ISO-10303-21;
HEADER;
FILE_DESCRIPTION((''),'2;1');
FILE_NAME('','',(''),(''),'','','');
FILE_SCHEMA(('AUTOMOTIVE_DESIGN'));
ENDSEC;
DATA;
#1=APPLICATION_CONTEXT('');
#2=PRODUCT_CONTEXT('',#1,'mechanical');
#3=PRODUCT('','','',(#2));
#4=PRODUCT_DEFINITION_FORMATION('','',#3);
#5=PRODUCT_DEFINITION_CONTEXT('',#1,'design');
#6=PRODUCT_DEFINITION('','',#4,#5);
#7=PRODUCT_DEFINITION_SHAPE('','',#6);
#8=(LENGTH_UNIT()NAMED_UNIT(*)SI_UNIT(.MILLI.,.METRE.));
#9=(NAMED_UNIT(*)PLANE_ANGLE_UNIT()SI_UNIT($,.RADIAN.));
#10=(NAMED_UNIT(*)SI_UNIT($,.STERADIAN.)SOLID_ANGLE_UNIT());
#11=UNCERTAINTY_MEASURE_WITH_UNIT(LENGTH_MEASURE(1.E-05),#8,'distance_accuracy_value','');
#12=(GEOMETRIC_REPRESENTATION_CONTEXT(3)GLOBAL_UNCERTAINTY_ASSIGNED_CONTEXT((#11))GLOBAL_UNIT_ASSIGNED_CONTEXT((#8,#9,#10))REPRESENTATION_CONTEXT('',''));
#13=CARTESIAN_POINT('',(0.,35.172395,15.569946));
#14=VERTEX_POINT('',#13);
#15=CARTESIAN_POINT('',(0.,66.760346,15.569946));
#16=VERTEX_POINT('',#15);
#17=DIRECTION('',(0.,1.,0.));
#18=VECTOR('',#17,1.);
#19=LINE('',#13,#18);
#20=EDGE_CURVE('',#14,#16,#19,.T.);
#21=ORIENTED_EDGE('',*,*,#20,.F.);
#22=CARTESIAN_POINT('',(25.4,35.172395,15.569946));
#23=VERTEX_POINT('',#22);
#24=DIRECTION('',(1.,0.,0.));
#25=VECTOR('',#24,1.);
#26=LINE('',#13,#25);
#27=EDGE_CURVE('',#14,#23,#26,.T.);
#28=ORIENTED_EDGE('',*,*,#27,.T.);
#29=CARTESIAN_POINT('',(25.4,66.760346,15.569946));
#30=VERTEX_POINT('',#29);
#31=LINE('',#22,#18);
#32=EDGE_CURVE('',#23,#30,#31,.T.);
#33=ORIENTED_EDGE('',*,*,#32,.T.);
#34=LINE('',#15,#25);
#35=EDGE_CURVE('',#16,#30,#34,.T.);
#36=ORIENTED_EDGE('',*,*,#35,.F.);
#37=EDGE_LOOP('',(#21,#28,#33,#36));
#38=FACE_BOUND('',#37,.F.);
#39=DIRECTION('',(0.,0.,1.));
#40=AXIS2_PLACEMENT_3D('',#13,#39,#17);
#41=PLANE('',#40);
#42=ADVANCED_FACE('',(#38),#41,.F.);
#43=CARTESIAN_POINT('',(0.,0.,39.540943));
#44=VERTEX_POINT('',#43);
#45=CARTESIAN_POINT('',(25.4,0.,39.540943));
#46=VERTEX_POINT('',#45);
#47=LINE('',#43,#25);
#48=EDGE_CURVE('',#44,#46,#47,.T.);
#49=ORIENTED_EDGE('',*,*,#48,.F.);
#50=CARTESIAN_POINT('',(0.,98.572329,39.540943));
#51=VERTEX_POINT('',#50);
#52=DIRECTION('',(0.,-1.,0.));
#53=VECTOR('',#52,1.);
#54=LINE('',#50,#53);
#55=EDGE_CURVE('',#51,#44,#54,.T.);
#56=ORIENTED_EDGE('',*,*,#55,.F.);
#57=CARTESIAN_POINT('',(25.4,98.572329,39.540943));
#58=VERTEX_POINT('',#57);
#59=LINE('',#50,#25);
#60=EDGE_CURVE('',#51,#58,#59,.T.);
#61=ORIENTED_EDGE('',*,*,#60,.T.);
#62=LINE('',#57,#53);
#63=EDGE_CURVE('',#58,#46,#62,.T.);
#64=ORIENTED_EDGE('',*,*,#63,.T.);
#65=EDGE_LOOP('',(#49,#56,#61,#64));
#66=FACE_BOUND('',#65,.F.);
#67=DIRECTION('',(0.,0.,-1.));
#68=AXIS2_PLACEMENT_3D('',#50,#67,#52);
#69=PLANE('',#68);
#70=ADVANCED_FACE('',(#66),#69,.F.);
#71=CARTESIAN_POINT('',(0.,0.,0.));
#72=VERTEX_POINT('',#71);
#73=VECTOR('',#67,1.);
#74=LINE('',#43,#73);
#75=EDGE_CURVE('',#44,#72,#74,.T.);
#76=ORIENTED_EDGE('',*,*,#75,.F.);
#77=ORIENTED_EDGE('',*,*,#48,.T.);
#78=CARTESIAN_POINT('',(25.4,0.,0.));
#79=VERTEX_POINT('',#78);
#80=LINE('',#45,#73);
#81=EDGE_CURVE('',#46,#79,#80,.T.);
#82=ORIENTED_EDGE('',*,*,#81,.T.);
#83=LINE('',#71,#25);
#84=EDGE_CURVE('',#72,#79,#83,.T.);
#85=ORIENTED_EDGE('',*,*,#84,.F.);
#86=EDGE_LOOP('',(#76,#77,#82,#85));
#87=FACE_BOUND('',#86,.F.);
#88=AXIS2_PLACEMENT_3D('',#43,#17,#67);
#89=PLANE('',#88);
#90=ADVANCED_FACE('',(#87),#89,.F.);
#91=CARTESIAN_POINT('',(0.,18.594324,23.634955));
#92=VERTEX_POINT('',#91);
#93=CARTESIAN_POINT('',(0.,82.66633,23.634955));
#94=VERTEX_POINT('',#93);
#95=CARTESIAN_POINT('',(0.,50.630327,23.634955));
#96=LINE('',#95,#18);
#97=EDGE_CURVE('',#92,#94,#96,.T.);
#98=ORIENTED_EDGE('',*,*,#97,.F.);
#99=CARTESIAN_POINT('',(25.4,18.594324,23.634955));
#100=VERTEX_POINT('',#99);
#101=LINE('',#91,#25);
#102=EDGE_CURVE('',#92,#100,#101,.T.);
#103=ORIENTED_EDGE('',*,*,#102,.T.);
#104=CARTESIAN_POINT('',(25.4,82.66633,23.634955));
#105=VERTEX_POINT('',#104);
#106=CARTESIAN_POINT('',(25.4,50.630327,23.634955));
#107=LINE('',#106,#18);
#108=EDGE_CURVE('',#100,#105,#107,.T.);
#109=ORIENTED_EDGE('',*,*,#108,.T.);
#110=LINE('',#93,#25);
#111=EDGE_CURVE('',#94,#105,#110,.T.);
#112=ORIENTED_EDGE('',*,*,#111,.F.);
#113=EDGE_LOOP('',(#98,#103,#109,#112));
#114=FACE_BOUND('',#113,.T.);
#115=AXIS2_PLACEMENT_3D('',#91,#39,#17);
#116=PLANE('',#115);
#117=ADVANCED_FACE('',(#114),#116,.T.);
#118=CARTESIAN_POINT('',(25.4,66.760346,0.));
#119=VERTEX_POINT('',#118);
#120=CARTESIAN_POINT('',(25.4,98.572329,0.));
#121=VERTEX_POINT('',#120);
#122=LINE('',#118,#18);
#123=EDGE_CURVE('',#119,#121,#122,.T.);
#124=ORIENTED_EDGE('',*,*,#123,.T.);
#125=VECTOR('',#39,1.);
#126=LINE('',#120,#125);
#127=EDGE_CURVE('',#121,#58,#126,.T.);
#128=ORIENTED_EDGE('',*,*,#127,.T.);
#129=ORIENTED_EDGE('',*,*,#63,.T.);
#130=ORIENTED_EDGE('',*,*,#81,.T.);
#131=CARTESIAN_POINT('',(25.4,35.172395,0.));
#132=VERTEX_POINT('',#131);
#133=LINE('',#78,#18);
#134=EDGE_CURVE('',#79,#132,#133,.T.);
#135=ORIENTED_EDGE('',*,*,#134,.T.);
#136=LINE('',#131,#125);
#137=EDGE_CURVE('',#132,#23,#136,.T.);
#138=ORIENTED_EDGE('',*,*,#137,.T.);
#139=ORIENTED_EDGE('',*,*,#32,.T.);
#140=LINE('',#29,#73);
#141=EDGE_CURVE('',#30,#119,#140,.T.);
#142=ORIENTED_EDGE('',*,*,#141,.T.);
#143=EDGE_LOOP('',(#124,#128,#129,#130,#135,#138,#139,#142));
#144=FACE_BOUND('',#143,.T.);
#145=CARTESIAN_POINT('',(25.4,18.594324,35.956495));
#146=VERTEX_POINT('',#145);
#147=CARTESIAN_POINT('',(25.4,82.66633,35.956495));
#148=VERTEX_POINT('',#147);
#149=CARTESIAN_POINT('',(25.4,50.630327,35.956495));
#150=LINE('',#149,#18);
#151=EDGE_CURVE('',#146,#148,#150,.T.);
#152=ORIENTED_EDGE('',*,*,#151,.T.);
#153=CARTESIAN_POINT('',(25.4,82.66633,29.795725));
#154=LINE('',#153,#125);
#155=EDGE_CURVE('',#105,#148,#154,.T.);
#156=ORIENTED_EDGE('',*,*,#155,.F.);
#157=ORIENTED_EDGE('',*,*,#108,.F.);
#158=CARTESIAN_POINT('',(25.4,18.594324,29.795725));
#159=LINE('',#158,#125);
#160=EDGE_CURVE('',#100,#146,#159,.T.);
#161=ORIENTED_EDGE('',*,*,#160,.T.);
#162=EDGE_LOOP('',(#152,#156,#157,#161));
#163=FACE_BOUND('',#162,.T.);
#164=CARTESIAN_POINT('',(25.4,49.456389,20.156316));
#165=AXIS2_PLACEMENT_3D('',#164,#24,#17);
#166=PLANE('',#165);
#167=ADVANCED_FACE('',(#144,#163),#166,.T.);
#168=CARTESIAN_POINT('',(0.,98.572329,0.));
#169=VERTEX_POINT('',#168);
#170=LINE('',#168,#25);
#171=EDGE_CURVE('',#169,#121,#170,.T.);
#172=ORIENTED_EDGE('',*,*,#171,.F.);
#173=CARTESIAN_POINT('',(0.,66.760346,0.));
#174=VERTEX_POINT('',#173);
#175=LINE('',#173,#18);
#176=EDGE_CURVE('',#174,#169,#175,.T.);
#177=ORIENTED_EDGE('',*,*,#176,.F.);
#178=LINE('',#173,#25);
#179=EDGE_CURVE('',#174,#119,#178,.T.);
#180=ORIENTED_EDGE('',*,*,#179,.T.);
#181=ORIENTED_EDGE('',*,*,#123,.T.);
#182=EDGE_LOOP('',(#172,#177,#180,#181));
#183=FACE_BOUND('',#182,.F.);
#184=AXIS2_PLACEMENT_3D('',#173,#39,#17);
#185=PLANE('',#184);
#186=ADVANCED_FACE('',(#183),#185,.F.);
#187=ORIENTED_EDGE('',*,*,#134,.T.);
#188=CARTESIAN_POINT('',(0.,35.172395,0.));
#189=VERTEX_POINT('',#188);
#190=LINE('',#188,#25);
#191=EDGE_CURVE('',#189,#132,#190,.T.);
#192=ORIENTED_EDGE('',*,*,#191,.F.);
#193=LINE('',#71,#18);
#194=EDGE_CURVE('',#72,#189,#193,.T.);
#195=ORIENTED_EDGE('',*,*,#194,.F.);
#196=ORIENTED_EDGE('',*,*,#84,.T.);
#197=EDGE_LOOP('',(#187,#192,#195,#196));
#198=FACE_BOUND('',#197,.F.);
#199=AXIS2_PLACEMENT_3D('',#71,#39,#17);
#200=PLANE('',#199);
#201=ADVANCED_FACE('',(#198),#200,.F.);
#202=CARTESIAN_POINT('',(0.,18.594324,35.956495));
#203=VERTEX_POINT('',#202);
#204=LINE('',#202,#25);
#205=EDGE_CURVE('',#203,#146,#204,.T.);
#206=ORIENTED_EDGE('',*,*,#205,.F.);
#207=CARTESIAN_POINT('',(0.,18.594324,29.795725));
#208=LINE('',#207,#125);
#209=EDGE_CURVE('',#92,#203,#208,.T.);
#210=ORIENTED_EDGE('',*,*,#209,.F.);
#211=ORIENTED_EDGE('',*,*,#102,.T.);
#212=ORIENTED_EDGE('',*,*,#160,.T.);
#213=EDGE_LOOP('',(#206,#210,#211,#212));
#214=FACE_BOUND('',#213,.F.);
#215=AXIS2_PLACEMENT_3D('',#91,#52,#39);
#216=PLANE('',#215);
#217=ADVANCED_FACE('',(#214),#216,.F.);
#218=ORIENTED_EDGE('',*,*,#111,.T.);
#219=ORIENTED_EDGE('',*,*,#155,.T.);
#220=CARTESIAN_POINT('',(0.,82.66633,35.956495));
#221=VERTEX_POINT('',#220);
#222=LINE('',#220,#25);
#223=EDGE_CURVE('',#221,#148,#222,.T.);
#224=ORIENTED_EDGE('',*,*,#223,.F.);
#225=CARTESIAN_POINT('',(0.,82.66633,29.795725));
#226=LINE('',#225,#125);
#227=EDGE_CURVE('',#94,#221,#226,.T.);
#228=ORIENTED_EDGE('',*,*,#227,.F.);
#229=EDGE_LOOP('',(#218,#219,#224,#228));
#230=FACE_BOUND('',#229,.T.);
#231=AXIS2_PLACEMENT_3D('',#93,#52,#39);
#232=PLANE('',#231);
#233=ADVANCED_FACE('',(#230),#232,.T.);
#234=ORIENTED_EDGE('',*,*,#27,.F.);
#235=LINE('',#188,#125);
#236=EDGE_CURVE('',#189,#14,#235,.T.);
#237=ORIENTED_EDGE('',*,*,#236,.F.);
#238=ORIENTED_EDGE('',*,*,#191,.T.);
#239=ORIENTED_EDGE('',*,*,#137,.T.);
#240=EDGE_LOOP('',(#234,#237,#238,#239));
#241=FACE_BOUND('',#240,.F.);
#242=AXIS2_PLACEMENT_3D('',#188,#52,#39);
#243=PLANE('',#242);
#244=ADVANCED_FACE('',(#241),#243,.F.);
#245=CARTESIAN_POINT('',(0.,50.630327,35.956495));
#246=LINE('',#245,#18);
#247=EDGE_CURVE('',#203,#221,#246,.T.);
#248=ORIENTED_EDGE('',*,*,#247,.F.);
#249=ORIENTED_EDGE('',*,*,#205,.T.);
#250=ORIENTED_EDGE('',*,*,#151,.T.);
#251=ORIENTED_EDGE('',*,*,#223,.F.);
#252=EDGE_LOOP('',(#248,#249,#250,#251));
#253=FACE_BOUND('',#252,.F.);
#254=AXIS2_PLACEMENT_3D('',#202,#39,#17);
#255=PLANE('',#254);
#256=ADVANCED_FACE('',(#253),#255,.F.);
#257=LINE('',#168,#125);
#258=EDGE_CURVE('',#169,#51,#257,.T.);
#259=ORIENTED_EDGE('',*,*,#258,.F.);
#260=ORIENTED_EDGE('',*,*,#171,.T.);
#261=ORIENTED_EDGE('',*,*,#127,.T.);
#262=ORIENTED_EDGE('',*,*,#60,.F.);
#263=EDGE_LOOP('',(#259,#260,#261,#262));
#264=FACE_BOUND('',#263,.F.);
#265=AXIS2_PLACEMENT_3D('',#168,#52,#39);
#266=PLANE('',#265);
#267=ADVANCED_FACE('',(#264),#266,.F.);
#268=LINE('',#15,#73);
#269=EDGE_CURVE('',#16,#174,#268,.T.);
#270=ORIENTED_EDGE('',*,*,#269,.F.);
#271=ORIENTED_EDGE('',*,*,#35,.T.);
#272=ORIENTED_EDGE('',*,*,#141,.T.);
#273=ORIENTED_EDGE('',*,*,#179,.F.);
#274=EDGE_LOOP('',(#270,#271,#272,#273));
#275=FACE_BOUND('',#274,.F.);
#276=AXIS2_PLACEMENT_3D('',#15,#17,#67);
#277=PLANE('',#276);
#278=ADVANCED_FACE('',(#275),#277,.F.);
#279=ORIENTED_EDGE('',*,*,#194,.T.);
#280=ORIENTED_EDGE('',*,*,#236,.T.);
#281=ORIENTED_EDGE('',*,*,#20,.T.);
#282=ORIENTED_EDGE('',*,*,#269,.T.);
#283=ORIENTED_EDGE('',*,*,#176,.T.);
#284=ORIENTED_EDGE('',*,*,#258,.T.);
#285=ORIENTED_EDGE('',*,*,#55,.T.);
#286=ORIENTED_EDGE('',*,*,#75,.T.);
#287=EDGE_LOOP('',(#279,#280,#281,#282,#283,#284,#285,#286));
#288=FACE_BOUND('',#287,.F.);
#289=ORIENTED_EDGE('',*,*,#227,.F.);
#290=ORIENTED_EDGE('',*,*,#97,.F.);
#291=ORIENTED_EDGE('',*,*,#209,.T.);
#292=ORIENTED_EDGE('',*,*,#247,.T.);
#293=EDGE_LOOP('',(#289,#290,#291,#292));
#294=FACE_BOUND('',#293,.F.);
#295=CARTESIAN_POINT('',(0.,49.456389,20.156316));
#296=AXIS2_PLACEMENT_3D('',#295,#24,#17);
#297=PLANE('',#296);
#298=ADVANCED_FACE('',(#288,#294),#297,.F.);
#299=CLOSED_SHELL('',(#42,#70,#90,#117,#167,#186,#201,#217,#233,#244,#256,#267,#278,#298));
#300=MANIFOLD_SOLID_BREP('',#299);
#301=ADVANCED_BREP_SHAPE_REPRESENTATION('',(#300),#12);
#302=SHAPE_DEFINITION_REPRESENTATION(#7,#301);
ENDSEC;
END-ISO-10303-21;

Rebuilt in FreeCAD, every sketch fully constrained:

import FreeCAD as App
import Part
import Sketcher

V = App.Vector
Q = App.Units.Quantity


def add_polygon(sketch, points):
    """Adds a closed chain of lines whose ends are joined by coincident constraints."""
    first, n = sketch.GeometryCount, len(points)
    for a, b in zip(points, points[1:] + points[:1]):
        sketch.addGeometry(Part.LineSegment(App.Vector(*a, 0), App.Vector(*b, 0)), False)
    for i in range(n):
        sketch.addConstraint(Sketcher.Constraint("Coincident", first + i, 2, first + (i + 1) % n, 1))

doc = App.newDocument("Part")
body = doc.addObject("PartDesign::Body", "Body")

# Sketch on YZ plane
sketch1 = body.newObject("Sketcher::SketchObject", "Sketch")
sketch1.AttachmentSupport = (doc.getObject("YZ_Plane"), [""])
sketch1.MapMode = "FlatFace"
add_polygon(sketch1, [(0, 40), (0, 0), (35, 0), (35, 16), (67, 16), (67, 0), (99, 0), (99, 40)])  # lines 0-7
add_polygon(sketch1, [(83, 24), (19, 24), (19, 36), (83, 36)])  # lines 8-11
sketch1.addConstraint([
    Sketcher.Constraint("Vertical", 0),
    Sketcher.Constraint("Horizontal", 1),
    Sketcher.Constraint("Vertical", 2),
    Sketcher.Constraint("Horizontal", 3),
    Sketcher.Constraint("Vertical", 4),
    Sketcher.Constraint("Horizontal", 5),
    Sketcher.Constraint("Vertical", 6),
    Sketcher.Constraint("Horizontal", 7),
    Sketcher.Constraint("Horizontal", 8),
    Sketcher.Constraint("Vertical", 9),
    Sketcher.Constraint("Horizontal", 10),
    Sketcher.Constraint("Vertical", 11),
    Sketcher.Constraint("Coincident", 0, 2, -1, 1),
    Sketcher.Constraint("PointOnObject", 4, 2, -1),
    Sketcher.Constraint("DistanceY", 9, 1, 9, 2, Q("0.4851 in")),
    Sketcher.Constraint("DistanceX", 8, 2, 3, 2, Q("1.8963001 in")),
    Sketcher.Constraint("DistanceX", 3, 1, 3, 2, 31.587951),
    Sketcher.Constraint("DistanceX", 7, 2, 7, 1, 98.572329),
    Sketcher.Constraint("DistanceX", 10, 2, 6, 2, 15.905999),
    Sketcher.Constraint("DistanceX", 1, 1, 1, 2, 35.172395),
    Sketcher.Constraint("DistanceY", 0, 2, 0, 1, 39.540943),
    Sketcher.Constraint("DistanceY", 2, 1, 2, 2, 15.569946),
    Sketcher.Constraint("DistanceY", 2, 2, 8, 2, 8.065009),
])
pad1 = body.newObject("PartDesign::Pad", "Pad")
pad1.Profile = sketch1
pad1.Length = Q("1 in")

doc.recompute()
